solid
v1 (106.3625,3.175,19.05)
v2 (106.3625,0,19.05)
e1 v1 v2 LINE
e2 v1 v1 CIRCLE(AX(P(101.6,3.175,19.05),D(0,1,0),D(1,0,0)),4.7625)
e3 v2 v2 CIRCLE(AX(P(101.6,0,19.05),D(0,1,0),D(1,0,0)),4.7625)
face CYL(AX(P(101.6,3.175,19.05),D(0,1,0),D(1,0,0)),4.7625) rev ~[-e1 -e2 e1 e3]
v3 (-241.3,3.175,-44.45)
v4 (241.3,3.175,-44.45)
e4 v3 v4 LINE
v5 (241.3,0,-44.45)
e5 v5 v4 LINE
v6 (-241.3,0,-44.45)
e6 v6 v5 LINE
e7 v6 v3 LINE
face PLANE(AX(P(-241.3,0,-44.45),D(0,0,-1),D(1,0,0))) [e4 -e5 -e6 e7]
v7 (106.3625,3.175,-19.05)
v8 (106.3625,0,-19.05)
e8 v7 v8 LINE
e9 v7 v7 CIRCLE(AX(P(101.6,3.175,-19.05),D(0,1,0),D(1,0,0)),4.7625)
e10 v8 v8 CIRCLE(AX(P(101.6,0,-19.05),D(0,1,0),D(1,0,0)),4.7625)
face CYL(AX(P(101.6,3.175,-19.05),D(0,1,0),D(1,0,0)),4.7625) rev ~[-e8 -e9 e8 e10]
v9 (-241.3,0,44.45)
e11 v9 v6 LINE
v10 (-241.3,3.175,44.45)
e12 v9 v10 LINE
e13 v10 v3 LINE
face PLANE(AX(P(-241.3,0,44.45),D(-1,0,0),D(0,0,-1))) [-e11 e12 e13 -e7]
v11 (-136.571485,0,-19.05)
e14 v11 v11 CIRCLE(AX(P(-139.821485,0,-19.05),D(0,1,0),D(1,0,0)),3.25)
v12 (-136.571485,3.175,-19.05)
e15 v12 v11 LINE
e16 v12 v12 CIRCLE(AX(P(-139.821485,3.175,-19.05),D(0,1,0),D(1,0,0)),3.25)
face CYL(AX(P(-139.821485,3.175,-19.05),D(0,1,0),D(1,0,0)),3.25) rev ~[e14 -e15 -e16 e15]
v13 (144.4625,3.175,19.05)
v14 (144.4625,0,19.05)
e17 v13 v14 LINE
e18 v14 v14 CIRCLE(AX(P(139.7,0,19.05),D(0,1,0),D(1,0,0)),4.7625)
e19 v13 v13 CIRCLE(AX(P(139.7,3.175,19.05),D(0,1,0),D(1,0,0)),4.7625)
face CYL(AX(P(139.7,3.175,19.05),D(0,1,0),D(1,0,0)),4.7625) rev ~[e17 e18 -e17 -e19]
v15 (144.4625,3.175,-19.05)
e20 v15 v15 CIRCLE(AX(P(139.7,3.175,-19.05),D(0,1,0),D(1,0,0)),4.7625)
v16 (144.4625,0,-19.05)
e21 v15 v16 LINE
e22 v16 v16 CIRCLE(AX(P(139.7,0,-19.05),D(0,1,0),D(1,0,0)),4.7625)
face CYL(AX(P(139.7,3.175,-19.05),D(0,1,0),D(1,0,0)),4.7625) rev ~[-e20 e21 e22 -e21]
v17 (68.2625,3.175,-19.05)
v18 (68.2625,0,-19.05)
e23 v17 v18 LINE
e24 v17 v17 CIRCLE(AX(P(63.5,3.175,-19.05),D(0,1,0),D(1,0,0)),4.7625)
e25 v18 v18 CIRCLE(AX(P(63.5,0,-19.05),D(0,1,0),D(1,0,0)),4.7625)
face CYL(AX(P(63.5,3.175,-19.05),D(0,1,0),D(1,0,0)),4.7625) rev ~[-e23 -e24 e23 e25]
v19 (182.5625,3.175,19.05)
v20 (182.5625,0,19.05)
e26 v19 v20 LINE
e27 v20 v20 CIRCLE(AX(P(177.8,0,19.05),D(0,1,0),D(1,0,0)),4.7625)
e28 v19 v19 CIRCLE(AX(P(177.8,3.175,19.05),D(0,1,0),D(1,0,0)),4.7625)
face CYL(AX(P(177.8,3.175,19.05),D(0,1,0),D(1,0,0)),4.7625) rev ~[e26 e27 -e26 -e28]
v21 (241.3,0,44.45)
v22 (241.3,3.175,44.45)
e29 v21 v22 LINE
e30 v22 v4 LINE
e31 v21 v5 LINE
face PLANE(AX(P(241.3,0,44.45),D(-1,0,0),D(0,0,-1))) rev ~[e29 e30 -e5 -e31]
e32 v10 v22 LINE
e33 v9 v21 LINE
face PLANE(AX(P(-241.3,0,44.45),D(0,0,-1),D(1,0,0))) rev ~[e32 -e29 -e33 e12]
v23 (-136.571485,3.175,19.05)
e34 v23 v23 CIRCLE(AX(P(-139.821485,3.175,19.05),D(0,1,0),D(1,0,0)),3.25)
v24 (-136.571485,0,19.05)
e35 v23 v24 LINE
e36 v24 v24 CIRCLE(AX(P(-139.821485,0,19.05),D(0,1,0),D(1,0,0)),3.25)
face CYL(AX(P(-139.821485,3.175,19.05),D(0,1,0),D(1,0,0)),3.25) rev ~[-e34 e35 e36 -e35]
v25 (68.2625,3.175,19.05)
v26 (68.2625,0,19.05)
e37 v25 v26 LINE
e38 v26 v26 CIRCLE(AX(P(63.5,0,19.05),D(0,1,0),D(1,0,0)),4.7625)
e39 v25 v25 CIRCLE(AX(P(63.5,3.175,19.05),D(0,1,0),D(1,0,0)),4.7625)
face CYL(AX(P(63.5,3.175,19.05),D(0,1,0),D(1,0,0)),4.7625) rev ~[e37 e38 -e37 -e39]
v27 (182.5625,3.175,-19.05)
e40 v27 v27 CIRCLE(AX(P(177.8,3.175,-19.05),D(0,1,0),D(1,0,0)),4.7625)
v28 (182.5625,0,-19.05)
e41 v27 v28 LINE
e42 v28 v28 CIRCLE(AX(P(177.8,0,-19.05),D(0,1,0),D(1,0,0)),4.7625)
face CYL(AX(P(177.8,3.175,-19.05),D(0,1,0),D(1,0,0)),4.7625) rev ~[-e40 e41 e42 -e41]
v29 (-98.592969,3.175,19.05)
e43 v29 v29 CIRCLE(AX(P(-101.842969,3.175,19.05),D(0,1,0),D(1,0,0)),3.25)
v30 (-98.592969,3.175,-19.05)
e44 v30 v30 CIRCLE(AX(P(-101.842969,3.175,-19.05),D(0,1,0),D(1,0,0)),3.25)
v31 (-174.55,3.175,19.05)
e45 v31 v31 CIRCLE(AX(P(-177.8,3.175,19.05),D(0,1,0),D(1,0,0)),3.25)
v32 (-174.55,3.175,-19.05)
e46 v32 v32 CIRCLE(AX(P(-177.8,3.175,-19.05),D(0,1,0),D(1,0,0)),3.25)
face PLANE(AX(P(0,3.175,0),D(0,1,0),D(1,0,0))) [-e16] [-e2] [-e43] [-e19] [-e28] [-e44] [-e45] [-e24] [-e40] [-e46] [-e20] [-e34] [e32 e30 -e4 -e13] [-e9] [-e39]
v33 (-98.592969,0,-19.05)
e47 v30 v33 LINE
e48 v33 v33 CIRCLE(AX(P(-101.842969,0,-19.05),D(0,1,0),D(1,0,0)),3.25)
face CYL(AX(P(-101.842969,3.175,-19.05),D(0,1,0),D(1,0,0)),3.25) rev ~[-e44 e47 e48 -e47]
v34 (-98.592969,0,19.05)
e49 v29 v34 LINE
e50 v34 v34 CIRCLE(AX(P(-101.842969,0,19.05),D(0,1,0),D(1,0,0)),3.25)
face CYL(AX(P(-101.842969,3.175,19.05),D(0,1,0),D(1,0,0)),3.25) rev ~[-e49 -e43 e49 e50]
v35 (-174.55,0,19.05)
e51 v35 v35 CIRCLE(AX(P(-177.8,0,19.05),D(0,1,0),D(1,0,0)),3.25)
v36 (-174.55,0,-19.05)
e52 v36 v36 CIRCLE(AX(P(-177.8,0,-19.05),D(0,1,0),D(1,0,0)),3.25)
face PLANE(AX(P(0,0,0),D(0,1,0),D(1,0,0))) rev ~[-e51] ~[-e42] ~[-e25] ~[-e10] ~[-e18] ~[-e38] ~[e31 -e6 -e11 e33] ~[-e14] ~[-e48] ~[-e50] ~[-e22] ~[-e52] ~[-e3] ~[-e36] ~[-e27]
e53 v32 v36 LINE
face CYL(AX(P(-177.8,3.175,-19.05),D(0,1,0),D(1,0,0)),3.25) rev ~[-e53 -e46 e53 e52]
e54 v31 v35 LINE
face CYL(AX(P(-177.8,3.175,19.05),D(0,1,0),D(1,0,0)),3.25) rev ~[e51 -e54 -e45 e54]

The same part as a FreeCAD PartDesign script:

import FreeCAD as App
import Part
import Sketcher
from FreeCAD import Vector
Q = App.Units.Quantity


def add_polygon(sketch, points):
    """Adds a closed chain of lines whose ends are joined by coincident constraints."""
    first, n = sketch.GeometryCount, len(points)
    for a, b in zip(points, points[1:] + points[:1]):
        sketch.addGeometry(Part.LineSegment(App.Vector(*a, 0), App.Vector(*b, 0)), False)
    for i in range(n):
        sketch.addConstraint(Sketcher.Constraint("Coincident", first + i, 2, first + (i + 1) % n, 1))

doc = App.newDocument("Part")
body = doc.addObject("PartDesign::Body", "Body")

sketch1 = doc.addObject("Sketcher::SketchObject", "Sketch")
body.addObject(sketch1)
sketch1.AttachmentSupport = (doc.XZ_Plane, [""])
sketch1.MapMode = "FlatFace"
add_polygon(sketch1, [(-241, -44), (-241, 44), (241, 44), (241, -44)])
sketch1.addConstraint([
    Sketcher.Constraint("Vertical", 0),
    Sketcher.Constraint("Horizontal", 1),
    Sketcher.Constraint("Vertical", 2),
    Sketcher.Constraint("Horizontal", 3),
    Sketcher.Constraint("Symmetric", 0, 2, 2, 2, -1, 1),
    Sketcher.Constraint("DistanceX", 1, 1, 1, 2, Q("19 in")),
    Sketcher.Constraint("DistanceY", 0, 1, 0, 2, Q("3.5 in")),
])
pad1 = doc.addObject("PartDesign::Pad", "Pad")
body.addObject(pad1)
pad1.Profile = sketch1
pad1.Length = Q("0.125 in")
pad1.Reversed = True

sketch2 = doc.addObject("Sketcher::SketchObject", "Sketch001")
body.addObject(sketch2)
sketch2.AttachmentSupport = (doc.XZ_Plane, [""])
sketch2.MapMode = "FlatFace"
sketch2.AttachmentOffset = App.Placement(Vector(0, 0, -0.125 * 25.4), App.Rotation())
sketch2.addGeometry([
    Part.Circle(Vector(-101.8, 19.1, 0), Vector(0, 0, 1), 3.2),
    Part.Circle(Vector(-139.8, 19.1, 0), Vector(0, 0, 1), 3.2),
    Part.Circle(Vector(-177.8, 19.1, 0), Vector(0, 0, 1), 3.2),
    Part.Circle(Vector(-139.8, -19.1, 0), Vector(0, 0, 1), 3.2),
    Part.Circle(Vector(-177.8, -19.1, 0), Vector(0, 0, 1), 3.2),
    Part.Circle(Vector(-101.8, -19.1, 0), Vector(0, 0, 1), 3.2),
    Part.Circle(Vector(177.8, 19.1, 0), Vector(0, 0, 1), 4.8),
    Part.Circle(Vector(139.7, 19.1, 0), Vector(0, 0, 1), 4.8),
    Part.Circle(Vector(101.6, 19.1, 0), Vector(0, 0, 1), 4.8),
    Part.Circle(Vector(63.5, 19.1, 0), Vector(0, 0, 1), 4.8),
    Part.Circle(Vector(139.7, -19.1, 0), Vector(0, 0, 1), 4.8),
    Part.Circle(Vector(101.6, -19.1, 0), Vector(0, 0, 1), 4.8),
    Part.Circle(Vector(63.5, -19.1, 0), Vector(0, 0, 1), 4.8),
    Part.Circle(Vector(177.8, -19.1, 0), Vector(0, 0, 1), 4.8),
], False)
sketch2.addConstraint([
    Sketcher.Constraint("Equal", 0, 1),
    Sketcher.Constraint("Equal", 1, 2),
    Sketcher.Constraint("Equal", 2, 3),
    Sketcher.Constraint("Equal", 3, 4),
    Sketcher.Constraint("Equal", 4, 5),
    Sketcher.Constraint("Equal", 6, 7),
    Sketcher.Constraint("Equal", 7, 8),
    Sketcher.Constraint("Equal", 8, 9),
    Sketcher.Constraint("Equal", 9, 10),
    Sketcher.Constraint("Equal", 10, 11),
    Sketcher.Constraint("Equal", 11, 12),
    Sketcher.Constraint("Equal", 12, 13),
    Sketcher.Constraint("Symmetric", 4, 3, 6, 3, -1, 1),
    Sketcher.Constraint("Symmetric", 2, 3, 13, 3, -1, 1),
    Sketcher.Constraint("Symmetric", 2, 3, 6, 3, -2),
    Sketcher.Constraint("Symmetric", 1, 3, 3, 3, -1),
    Sketcher.Constraint("Symmetric", 0, 3, 5, 3, -1),
    Sketcher.Constraint("Symmetric", 7, 3, 10, 3, -1),
    Sketcher.Constraint("Symmetric", 8, 3, 11, 3, -1),
    Sketcher.Constraint("Symmetric", 9, 3, 12, 3, -1),
    Sketcher.Constraint("Horizontal", 0, 3, 1, 3),
    Sketcher.Constraint("Horizontal", 1, 3, 2, 3),
    Sketcher.Constraint("Horizontal", 6, 3, 7, 3),
    Sketcher.Constraint("Horizontal", 7, 3, 8, 3),
    Sketcher.Constraint("Horizontal", 8, 3, 9, 3),
    Sketcher.Constraint("Diameter", 6, Q("0.375 in")),
    Sketcher.Constraint("DistanceX", 2, 3, -1, 1, Q("7 in")),
    Sketcher.Constraint("DistanceX", -1, 1, 8, 3, Q("4 in")),
    Sketcher.Constraint("DistanceX", 9, 3, 7, 3, Q("3 in")),
    Sketcher.Constraint("DistanceX", -1, 1, 7, 3, Q("5.5 in")),
    Sketcher.Constraint("DistanceY", 3, 3, 1, 3, Q("1.5 in")),
    Sketcher.Constraint("Diameter", 0, Q("6.5 mm")),
    Sketcher.Constraint("DistanceX", 0, 3, -1, 1, Q("101.842969 mm")),
    Sketcher.Constraint("DistanceX", 1, 3, -1, 1, Q("139.821485 mm")),
])
pocket1 = doc.addObject("PartDesign::Pocket", "Pocket")
body.addObject(pocket1)
pocket1.Profile = sketch2
pocket1.Length = Q("0.125 in")
pocket1.Reversed = True

doc.recompute()
